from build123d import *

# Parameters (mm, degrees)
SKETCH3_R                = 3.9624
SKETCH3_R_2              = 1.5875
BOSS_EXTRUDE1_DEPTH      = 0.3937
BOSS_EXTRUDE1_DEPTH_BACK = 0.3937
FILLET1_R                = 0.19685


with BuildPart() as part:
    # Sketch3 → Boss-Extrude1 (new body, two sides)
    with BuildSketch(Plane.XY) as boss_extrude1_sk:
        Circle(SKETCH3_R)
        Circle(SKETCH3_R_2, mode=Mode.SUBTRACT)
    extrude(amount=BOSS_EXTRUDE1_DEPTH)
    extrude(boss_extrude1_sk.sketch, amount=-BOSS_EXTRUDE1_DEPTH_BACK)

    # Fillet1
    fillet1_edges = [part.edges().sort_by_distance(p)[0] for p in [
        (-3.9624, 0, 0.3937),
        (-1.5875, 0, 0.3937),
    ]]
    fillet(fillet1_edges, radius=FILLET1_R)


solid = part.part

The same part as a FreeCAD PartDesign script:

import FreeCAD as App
import Part
import Sketcher

V = App.Vector
Q = App.Units.Quantity


def edges_at(feature, points):
    """Names of the edges that pass closest to the given points."""
    edges = feature.Shape.Edges
    near = lambda p: min(range(len(edges)), key=lambda i: edges[i].distToShape(Part.Vertex(*p))[0])
    return sorted({f"Edge{near(p) + 1}" for p in points})

doc = App.newDocument("Part")
body = doc.addObject("PartDesign::Body", "Body")

# Sketch on XY plane
sketch1 = body.newObject("Sketcher::SketchObject", "Sketch")
sketch1.AttachmentSupport = (doc.getObject("XY_Plane"), [""])
sketch1.MapMode = "FlatFace"
sketch1.addGeometry(Part.Circle(V(0, 0, 0), V(0, 0, 1), 4), False)
sketch1.addGeometry(Part.Circle(V(0, 0, 0), V(0, 0, 1), 1.6), False)
sketch1.addConstraint(Sketcher.Constraint("Coincident", 0, 3, -1, 1))
sketch1.addConstraint(Sketcher.Constraint("Coincident", 1, 3, -1, 1))
sketch1.addConstraint(Sketcher.Constraint("Diameter", 0, Q("0.312 in")))
sketch1.addConstraint(Sketcher.Constraint("Diameter", 1, Q("0.125 in")))
pad1 = body.newObject("PartDesign::Pad", "Pad")
pad1.Profile = sketch1
pad1.Type = "TwoLengths"
pad1.Length = Q("0.0155 in")
pad1.Length2 = Q("0.0155 in")
doc.recompute()

fillet = body.newObject("PartDesign::Fillet", "Fillet")
fillet.Base = (pad1, edges_at(pad1, [(-3.962, 0, 0.394), (-1.587, 0, 0.394)]))
fillet.Radius = 0.19685

doc.recompute()
